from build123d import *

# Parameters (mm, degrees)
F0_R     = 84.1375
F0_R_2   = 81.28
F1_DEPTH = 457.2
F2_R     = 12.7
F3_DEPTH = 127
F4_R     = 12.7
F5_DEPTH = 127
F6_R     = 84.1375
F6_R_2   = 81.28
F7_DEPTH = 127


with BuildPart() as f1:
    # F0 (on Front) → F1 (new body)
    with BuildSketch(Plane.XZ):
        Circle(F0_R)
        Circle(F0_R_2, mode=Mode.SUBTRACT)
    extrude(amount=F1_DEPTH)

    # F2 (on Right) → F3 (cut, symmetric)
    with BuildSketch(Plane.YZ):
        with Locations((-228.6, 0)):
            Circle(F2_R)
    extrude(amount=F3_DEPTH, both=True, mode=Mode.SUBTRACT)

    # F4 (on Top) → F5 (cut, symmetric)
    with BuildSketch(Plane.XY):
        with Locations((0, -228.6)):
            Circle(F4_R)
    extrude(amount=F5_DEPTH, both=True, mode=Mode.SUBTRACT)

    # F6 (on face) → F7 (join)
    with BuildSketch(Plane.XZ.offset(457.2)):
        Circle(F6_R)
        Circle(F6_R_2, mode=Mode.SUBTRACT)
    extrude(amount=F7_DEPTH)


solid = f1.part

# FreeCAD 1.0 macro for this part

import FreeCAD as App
import Part
import Sketcher
Q = App.Units.Quantity

doc = App.newDocument("Part")
body = doc.addObject("PartDesign::Body", "Body")

# Sketch on XZ plane
sketch1 = doc.addObject("Sketcher::SketchObject", "Sketch")
body.addObject(sketch1)
sketch1.AttachmentSupport = (doc.XZ_Plane, [""])
sketch1.MapMode = "FlatFace"
sketch1.addGeometry([
    Part.Circle(App.Vector(0, 0, 0), App.Vector(0, 0, 1), 84),
    Part.Circle(App.Vector(0, 0, 0), App.Vector(0, 0, 1), 81),
], False)
sketch1.addConstraint([
    Sketcher.Constraint("Coincident", 0, 3, -1, 1),
    Sketcher.Constraint("Coincident", 1, 3, -1, 1),
    Sketcher.Constraint("Diameter", 1, Q("6.4 in")),
    Sketcher.Constraint("Diameter", 0, Q("6.625 in")),
])
pad1 = doc.addObject("PartDesign::Pad", "Pad")
body.addObject(pad1)
pad1.Profile = sketch1
pad1.Length = Q("18 in")

# Sketch on YZ plane
sketch2 = doc.addObject("Sketcher::SketchObject", "Sketch001")
body.addObject(sketch2)
sketch2.AttachmentSupport = (doc.YZ_Plane, [""])
sketch2.MapMode = "FlatFace"
sketch2.addGeometry(Part.Circle(App.Vector(-229, 0, 0), App.Vector(0, 0, 1), 13), False)
sketch2.addConstraint([
    Sketcher.Constraint("PointOnObject", 0, 3, -1),
    Sketcher.Constraint("Diameter", 0, Q("1 in")),
    Sketcher.Constraint("DistanceX", 0, 3, -1, 1, Q("9 in")),
])
pocket1 = doc.addObject("PartDesign::Pocket", "Pocket")
body.addObject(pocket1)
pocket1.Profile = sketch2
pocket1.Length = Q("10 in")
pocket1.Midplane = True

# Sketch on XY plane
sketch3 = doc.addObject("Sketcher::SketchObject", "Sketch002")
body.addObject(sketch3)
sketch3.AttachmentSupport = (doc.XY_Plane, [""])
sketch3.MapMode = "FlatFace"
sketch3.addGeometry(Part.Circle(App.Vector(0, -229, 0), App.Vector(0, 0, 1), 13), False)
sketch3.addConstraint([
    Sketcher.Constraint("PointOnObject", 0, 3, -2),
    Sketcher.Constraint("Diameter", 0, Q("1 in")),
    Sketcher.Constraint("DistanceY", 0, 3, -1, 1, Q("9 in")),
])
pocket2 = doc.addObject("PartDesign::Pocket", "Pocket001")
body.addObject(pocket2)
pocket2.Profile = sketch3
pocket2.Length = Q("10 in")
pocket2.Midplane = True

# Sketch on XZ plane
sketch4 = doc.addObject("Sketcher::SketchObject", "Sketch003")
body.addObject(sketch4)
sketch4.AttachmentSupport = (doc.XZ_Plane, [""])
sketch4.MapMode = "FlatFace"
sketch4.AttachmentOffset = App.Placement(App.Vector(0, 0, 18 * 25.4), App.Rotation())
sketch4.addGeometry([
    Part.Circle(App.Vector(0, 0, 0), App.Vector(0, 0, 1), 84),
    Part.Circle(App.Vector(0, 0, 0), App.Vector(0, 0, 1), 81),
], False)
sketch4.addConstraint([
    Sketcher.Constraint("Coincident", 0, 3, -1, 1),
    Sketcher.Constraint("Coincident", 1, 3, -1, 1),
    Sketcher.Constraint("Diameter", 1, Q("6.4 in")),
    Sketcher.Constraint("Diameter", 0, Q("6.625 in")),
])
pad2 = doc.addObject("PartDesign::Pad", "Pad001")
body.addObject(pad2)
pad2.Profile = sketch4
pad2.Length = Q("5 in")

doc.recompute()
